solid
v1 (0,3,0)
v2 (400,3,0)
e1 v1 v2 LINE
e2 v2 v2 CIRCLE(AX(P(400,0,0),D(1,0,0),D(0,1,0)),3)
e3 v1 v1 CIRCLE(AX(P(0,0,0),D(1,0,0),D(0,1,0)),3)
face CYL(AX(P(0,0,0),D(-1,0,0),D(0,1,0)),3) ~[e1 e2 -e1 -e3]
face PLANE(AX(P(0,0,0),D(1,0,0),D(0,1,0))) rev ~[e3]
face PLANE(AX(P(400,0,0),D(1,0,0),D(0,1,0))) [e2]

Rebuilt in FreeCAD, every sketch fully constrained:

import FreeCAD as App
import Part
import Sketcher

V = App.Vector
Q = App.Units.Quantity

doc = App.newDocument("Part")
body = doc.addObject("PartDesign::Body", "Body")

sketch1 = doc.addObject("Sketcher::SketchObject", "Sketch")
body.addObject(sketch1)
sketch1.AttachmentSupport = (doc.YZ_Plane, [""])
sketch1.MapMode = "FlatFace"
sketch1.addGeometry(Part.Circle(V(0, 0, 0), V(0, 0, 1), 3), False)
sketch1.addConstraint(Sketcher.Constraint("Coincident", 0, 3, -1, 1))
sketch1.addConstraint(Sketcher.Constraint("Diameter", 0, Q("6 mm")))
pad1 = doc.addObject("PartDesign::Pad", "Pad")
body.addObject(pad1)
pad1.Profile = sketch1
pad1.Length = 400

doc.recompute()
